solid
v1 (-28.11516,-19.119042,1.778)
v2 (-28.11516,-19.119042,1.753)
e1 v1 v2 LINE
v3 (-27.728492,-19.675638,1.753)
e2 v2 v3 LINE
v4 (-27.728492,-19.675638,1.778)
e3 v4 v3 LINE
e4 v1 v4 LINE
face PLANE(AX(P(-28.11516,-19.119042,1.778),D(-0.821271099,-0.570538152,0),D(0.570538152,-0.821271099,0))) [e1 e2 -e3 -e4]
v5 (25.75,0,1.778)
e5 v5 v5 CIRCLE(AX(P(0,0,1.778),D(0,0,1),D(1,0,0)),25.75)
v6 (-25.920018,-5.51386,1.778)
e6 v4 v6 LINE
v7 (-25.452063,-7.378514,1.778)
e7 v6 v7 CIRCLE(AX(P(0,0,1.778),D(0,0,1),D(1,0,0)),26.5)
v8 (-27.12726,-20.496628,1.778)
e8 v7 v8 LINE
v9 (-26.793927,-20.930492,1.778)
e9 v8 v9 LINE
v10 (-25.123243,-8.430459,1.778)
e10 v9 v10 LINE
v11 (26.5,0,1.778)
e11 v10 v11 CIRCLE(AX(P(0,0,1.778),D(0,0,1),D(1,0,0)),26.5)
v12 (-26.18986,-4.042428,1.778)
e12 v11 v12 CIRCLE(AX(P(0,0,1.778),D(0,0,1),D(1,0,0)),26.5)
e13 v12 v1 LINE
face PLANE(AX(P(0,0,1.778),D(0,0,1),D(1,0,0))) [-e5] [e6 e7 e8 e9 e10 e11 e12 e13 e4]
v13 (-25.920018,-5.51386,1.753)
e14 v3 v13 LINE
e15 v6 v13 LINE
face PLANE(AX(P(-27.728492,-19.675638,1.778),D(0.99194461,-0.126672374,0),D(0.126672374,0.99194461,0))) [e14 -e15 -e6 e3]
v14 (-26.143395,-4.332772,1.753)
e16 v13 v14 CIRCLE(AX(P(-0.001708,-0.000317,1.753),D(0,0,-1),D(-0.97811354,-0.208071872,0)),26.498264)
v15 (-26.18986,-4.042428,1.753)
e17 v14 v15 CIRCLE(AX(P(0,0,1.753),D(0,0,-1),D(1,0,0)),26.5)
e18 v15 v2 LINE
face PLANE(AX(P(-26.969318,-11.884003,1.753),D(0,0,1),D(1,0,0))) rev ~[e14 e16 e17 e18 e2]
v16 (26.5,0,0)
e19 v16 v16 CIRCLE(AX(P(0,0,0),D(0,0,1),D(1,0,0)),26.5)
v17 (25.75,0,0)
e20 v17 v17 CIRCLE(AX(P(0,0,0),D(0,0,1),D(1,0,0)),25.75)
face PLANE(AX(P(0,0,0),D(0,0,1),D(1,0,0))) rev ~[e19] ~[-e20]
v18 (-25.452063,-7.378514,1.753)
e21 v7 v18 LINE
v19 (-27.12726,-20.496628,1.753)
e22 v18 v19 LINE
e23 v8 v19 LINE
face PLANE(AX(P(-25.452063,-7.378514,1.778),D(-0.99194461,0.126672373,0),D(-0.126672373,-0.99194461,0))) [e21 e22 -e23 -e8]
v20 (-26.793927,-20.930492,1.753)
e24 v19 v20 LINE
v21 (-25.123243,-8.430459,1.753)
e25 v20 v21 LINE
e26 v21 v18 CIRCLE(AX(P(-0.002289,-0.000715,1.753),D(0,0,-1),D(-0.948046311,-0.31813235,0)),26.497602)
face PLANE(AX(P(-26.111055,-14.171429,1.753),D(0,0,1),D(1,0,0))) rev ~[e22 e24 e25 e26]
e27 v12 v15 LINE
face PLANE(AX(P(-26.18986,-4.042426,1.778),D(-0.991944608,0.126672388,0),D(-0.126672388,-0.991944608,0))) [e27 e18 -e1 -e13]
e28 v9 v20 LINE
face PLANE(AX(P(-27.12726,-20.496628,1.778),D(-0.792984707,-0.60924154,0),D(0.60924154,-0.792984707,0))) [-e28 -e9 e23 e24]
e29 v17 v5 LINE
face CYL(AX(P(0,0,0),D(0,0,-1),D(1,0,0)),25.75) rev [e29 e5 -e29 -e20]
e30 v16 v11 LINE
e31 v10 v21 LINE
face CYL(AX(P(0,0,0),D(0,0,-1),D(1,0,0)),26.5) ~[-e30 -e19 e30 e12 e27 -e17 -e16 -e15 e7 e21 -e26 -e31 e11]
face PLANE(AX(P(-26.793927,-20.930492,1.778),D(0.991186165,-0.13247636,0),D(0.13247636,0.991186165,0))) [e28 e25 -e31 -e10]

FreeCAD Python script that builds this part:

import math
import FreeCAD as App
import Part
import Sketcher

doc = App.newDocument("Part")
body = doc.addObject("PartDesign::Body", "Body")

sketch1 = body.newObject("Sketcher::SketchObject", "Sketch")
sketch1.AttachmentSupport = (doc.getObject("XY_Plane"), [""])
sketch1.MapMode = "FlatFace"
sketch1.addGeometry(Part.Circle(App.Vector(0, 0, 0), App.Vector(0, 0, 1), 26), False)
sketch1.addGeometry(Part.Circle(App.Vector(0, 0, 0), App.Vector(0, 0, 1), 26), False)
sketch1.addConstraint(Sketcher.Constraint("Coincident", 0, 3, -1, 1))
sketch1.addConstraint(Sketcher.Constraint("Coincident", 1, 3, -1, 1))
sketch1.addConstraint(Sketcher.Constraint("Diameter", 0, 53.0))
sketch1.addConstraint(Sketcher.Constraint("Diameter", 1, 51.5))
pad1 = body.newObject("PartDesign::Pad", "Pad")
pad1.Profile = sketch1
pad1.Length = 1.778

sketch2 = body.newObject("Sketcher::SketchObject", "Sketch001")
sketch2.AttachmentSupport = (doc.getObject("XY_Plane"), [""])
sketch2.MapMode = "FlatFace"
sketch2.AttachmentOffset = App.Placement(App.Vector(0, 0, 1.778), App.Rotation())
sketch2.addGeometry(Part.LineSegment(App.Vector(-26.2, -4, 0), App.Vector(-28.1, -19.1, 0)), False)
sketch2.addGeometry(Part.LineSegment(App.Vector(-28.1, -19.1, 0), App.Vector(-27.7, -19.7, 0)), False)
sketch2.addGeometry(Part.LineSegment(App.Vector(-27.7, -19.7, 0), App.Vector(-25.9, -5.5, 0)), False)
sketch2.addGeometry(Part.ArcOfCircle(Part.Circle(App.Vector(0, 0, 0), App.Vector(0, 0, 1), 26.5), math.radians(-171.23), math.radians(-167.99)), False)
sketch2.addGeometry(Part.LineSegment(App.Vector(-27.1, -20.5, 0), App.Vector(-26.8, -20.9, 0)), False)
sketch2.addGeometry(Part.LineSegment(App.Vector(-26.8, -20.9, 0), App.Vector(-25.1, -8.4, 0)), False)
sketch2.addGeometry(Part.ArcOfCircle(Part.Circle(App.Vector(0, 0, 0), App.Vector(0, 0, 1), 26.5), math.radians(-163.83), math.radians(-161.45)), False)
sketch2.addGeometry(Part.LineSegment(App.Vector(-25.5, -7.4, 0), App.Vector(-27.1, -20.5, 0)), False)
sketch2.addConstraint(Sketcher.Constraint("Coincident", 0, 2, 1, 1))
sketch2.addConstraint(Sketcher.Constraint("Coincident", 1, 2, 2, 1))
sketch2.addConstraint(Sketcher.Constraint("Coincident", 2, 2, 3, 2))
sketch2.addConstraint(Sketcher.Constraint("Coincident", 3, 1, 0, 1))
sketch2.addConstraint(Sketcher.Constraint("Coincident", 4, 2, 5, 1))
sketch2.addConstraint(Sketcher.Constraint("Coincident", 5, 2, 6, 2))
sketch2.addConstraint(Sketcher.Constraint("Coincident", 6, 1, 7, 1))
sketch2.addConstraint(Sketcher.Constraint("Coincident", 7, 2, 4, 1))
sketch2.addConstraint(Sketcher.Constraint("Parallel", 0, 2))
sketch2.addConstraint(Sketcher.Constraint("Parallel", 2, 7))
sketch2.addConstraint(Sketcher.Constraint("Radius", 6, 26.497602))
sketch2.addConstraint(Sketcher.Constraint("Radius", 3, 26.498264))
sketch2.addConstraint(Sketcher.Constraint("DistanceX", 0, 2, 3, 1, 1.9253))
sketch2.addConstraint(Sketcher.Constraint("DistanceY", 5, 2, 2, 2, 2.916599))
sketch2.addConstraint(Sketcher.Constraint("DistanceX", 0, 2, 7, 2, 0.9879))
sketch2.addConstraint(Sketcher.Constraint("Distance", 0, 15.19905))
sketch2.addConstraint(Sketcher.Constraint("DistanceX", 6, 3, -1, 1, 0.002289))
sketch2.addConstraint(Sketcher.Constraint("DistanceX", 0, 2, -1, 1, 28.11516))
sketch2.addConstraint(Sketcher.Constraint("DistanceX", 1, 2, -1, 1, 27.728492))
sketch2.addConstraint(Sketcher.Constraint("DistanceY", 2, 2, -1, 1, 5.51386))
sketch2.addConstraint(Sketcher.Constraint("DistanceY", 7, 2, -1, 1, 20.496628))
sketch2.addConstraint(Sketcher.Constraint("DistanceX", 6, 3, 3, 3, 0.000582))
sketch2.addConstraint(Sketcher.Constraint("DistanceY", 1, 2, 3, 3, 19.675321))
sketch2.addConstraint(Sketcher.Constraint("DistanceY", 3, 1, 6, 3, 4.041711))
sketch2.addConstraint(Sketcher.Constraint("DistanceY", 4, 2, 0, 2, 1.81145))
sketch2.addConstraint(Sketcher.Constraint("DistanceX", 4, 2, 2, 2, 0.873909))
pad2 = body.newObject("PartDesign::Pad", "Pad001")
pad2.Profile = sketch2
pad2.Length = 0.025
pad2.Reversed = True

doc.recompute()
